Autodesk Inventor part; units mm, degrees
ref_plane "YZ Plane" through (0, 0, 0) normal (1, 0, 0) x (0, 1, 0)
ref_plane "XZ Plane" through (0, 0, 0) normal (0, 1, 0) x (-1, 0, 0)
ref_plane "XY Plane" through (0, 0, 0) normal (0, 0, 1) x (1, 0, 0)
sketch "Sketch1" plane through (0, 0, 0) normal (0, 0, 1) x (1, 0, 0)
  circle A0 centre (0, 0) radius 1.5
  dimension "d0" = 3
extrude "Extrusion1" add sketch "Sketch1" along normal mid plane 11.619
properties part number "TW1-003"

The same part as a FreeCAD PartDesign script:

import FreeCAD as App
import Part
import Sketcher
from FreeCAD import Vector

doc = App.newDocument("Part")
body = doc.addObject("PartDesign::Body", "Body")

sketch1 = body.newObject("Sketcher::SketchObject", "Sketch")
sketch1.AttachmentSupport = (doc.getObject("XY_Plane"), [""])
sketch1.MapMode = "FlatFace"
sketch1.addGeometry(Part.Circle(Vector(0, 0, 0), Vector(0, 0, 1), 1.5), False)
sketch1.addConstraint([
    Sketcher.Constraint("Coincident", 0, 3, -1, 1),
    Sketcher.Constraint("Diameter", 0, 3.0),
])
pad1 = body.newObject("PartDesign::Pad", "Pad")
pad1.Profile = sketch1
pad1.Length = 11.619
pad1.Midplane = True

doc.recompute()
